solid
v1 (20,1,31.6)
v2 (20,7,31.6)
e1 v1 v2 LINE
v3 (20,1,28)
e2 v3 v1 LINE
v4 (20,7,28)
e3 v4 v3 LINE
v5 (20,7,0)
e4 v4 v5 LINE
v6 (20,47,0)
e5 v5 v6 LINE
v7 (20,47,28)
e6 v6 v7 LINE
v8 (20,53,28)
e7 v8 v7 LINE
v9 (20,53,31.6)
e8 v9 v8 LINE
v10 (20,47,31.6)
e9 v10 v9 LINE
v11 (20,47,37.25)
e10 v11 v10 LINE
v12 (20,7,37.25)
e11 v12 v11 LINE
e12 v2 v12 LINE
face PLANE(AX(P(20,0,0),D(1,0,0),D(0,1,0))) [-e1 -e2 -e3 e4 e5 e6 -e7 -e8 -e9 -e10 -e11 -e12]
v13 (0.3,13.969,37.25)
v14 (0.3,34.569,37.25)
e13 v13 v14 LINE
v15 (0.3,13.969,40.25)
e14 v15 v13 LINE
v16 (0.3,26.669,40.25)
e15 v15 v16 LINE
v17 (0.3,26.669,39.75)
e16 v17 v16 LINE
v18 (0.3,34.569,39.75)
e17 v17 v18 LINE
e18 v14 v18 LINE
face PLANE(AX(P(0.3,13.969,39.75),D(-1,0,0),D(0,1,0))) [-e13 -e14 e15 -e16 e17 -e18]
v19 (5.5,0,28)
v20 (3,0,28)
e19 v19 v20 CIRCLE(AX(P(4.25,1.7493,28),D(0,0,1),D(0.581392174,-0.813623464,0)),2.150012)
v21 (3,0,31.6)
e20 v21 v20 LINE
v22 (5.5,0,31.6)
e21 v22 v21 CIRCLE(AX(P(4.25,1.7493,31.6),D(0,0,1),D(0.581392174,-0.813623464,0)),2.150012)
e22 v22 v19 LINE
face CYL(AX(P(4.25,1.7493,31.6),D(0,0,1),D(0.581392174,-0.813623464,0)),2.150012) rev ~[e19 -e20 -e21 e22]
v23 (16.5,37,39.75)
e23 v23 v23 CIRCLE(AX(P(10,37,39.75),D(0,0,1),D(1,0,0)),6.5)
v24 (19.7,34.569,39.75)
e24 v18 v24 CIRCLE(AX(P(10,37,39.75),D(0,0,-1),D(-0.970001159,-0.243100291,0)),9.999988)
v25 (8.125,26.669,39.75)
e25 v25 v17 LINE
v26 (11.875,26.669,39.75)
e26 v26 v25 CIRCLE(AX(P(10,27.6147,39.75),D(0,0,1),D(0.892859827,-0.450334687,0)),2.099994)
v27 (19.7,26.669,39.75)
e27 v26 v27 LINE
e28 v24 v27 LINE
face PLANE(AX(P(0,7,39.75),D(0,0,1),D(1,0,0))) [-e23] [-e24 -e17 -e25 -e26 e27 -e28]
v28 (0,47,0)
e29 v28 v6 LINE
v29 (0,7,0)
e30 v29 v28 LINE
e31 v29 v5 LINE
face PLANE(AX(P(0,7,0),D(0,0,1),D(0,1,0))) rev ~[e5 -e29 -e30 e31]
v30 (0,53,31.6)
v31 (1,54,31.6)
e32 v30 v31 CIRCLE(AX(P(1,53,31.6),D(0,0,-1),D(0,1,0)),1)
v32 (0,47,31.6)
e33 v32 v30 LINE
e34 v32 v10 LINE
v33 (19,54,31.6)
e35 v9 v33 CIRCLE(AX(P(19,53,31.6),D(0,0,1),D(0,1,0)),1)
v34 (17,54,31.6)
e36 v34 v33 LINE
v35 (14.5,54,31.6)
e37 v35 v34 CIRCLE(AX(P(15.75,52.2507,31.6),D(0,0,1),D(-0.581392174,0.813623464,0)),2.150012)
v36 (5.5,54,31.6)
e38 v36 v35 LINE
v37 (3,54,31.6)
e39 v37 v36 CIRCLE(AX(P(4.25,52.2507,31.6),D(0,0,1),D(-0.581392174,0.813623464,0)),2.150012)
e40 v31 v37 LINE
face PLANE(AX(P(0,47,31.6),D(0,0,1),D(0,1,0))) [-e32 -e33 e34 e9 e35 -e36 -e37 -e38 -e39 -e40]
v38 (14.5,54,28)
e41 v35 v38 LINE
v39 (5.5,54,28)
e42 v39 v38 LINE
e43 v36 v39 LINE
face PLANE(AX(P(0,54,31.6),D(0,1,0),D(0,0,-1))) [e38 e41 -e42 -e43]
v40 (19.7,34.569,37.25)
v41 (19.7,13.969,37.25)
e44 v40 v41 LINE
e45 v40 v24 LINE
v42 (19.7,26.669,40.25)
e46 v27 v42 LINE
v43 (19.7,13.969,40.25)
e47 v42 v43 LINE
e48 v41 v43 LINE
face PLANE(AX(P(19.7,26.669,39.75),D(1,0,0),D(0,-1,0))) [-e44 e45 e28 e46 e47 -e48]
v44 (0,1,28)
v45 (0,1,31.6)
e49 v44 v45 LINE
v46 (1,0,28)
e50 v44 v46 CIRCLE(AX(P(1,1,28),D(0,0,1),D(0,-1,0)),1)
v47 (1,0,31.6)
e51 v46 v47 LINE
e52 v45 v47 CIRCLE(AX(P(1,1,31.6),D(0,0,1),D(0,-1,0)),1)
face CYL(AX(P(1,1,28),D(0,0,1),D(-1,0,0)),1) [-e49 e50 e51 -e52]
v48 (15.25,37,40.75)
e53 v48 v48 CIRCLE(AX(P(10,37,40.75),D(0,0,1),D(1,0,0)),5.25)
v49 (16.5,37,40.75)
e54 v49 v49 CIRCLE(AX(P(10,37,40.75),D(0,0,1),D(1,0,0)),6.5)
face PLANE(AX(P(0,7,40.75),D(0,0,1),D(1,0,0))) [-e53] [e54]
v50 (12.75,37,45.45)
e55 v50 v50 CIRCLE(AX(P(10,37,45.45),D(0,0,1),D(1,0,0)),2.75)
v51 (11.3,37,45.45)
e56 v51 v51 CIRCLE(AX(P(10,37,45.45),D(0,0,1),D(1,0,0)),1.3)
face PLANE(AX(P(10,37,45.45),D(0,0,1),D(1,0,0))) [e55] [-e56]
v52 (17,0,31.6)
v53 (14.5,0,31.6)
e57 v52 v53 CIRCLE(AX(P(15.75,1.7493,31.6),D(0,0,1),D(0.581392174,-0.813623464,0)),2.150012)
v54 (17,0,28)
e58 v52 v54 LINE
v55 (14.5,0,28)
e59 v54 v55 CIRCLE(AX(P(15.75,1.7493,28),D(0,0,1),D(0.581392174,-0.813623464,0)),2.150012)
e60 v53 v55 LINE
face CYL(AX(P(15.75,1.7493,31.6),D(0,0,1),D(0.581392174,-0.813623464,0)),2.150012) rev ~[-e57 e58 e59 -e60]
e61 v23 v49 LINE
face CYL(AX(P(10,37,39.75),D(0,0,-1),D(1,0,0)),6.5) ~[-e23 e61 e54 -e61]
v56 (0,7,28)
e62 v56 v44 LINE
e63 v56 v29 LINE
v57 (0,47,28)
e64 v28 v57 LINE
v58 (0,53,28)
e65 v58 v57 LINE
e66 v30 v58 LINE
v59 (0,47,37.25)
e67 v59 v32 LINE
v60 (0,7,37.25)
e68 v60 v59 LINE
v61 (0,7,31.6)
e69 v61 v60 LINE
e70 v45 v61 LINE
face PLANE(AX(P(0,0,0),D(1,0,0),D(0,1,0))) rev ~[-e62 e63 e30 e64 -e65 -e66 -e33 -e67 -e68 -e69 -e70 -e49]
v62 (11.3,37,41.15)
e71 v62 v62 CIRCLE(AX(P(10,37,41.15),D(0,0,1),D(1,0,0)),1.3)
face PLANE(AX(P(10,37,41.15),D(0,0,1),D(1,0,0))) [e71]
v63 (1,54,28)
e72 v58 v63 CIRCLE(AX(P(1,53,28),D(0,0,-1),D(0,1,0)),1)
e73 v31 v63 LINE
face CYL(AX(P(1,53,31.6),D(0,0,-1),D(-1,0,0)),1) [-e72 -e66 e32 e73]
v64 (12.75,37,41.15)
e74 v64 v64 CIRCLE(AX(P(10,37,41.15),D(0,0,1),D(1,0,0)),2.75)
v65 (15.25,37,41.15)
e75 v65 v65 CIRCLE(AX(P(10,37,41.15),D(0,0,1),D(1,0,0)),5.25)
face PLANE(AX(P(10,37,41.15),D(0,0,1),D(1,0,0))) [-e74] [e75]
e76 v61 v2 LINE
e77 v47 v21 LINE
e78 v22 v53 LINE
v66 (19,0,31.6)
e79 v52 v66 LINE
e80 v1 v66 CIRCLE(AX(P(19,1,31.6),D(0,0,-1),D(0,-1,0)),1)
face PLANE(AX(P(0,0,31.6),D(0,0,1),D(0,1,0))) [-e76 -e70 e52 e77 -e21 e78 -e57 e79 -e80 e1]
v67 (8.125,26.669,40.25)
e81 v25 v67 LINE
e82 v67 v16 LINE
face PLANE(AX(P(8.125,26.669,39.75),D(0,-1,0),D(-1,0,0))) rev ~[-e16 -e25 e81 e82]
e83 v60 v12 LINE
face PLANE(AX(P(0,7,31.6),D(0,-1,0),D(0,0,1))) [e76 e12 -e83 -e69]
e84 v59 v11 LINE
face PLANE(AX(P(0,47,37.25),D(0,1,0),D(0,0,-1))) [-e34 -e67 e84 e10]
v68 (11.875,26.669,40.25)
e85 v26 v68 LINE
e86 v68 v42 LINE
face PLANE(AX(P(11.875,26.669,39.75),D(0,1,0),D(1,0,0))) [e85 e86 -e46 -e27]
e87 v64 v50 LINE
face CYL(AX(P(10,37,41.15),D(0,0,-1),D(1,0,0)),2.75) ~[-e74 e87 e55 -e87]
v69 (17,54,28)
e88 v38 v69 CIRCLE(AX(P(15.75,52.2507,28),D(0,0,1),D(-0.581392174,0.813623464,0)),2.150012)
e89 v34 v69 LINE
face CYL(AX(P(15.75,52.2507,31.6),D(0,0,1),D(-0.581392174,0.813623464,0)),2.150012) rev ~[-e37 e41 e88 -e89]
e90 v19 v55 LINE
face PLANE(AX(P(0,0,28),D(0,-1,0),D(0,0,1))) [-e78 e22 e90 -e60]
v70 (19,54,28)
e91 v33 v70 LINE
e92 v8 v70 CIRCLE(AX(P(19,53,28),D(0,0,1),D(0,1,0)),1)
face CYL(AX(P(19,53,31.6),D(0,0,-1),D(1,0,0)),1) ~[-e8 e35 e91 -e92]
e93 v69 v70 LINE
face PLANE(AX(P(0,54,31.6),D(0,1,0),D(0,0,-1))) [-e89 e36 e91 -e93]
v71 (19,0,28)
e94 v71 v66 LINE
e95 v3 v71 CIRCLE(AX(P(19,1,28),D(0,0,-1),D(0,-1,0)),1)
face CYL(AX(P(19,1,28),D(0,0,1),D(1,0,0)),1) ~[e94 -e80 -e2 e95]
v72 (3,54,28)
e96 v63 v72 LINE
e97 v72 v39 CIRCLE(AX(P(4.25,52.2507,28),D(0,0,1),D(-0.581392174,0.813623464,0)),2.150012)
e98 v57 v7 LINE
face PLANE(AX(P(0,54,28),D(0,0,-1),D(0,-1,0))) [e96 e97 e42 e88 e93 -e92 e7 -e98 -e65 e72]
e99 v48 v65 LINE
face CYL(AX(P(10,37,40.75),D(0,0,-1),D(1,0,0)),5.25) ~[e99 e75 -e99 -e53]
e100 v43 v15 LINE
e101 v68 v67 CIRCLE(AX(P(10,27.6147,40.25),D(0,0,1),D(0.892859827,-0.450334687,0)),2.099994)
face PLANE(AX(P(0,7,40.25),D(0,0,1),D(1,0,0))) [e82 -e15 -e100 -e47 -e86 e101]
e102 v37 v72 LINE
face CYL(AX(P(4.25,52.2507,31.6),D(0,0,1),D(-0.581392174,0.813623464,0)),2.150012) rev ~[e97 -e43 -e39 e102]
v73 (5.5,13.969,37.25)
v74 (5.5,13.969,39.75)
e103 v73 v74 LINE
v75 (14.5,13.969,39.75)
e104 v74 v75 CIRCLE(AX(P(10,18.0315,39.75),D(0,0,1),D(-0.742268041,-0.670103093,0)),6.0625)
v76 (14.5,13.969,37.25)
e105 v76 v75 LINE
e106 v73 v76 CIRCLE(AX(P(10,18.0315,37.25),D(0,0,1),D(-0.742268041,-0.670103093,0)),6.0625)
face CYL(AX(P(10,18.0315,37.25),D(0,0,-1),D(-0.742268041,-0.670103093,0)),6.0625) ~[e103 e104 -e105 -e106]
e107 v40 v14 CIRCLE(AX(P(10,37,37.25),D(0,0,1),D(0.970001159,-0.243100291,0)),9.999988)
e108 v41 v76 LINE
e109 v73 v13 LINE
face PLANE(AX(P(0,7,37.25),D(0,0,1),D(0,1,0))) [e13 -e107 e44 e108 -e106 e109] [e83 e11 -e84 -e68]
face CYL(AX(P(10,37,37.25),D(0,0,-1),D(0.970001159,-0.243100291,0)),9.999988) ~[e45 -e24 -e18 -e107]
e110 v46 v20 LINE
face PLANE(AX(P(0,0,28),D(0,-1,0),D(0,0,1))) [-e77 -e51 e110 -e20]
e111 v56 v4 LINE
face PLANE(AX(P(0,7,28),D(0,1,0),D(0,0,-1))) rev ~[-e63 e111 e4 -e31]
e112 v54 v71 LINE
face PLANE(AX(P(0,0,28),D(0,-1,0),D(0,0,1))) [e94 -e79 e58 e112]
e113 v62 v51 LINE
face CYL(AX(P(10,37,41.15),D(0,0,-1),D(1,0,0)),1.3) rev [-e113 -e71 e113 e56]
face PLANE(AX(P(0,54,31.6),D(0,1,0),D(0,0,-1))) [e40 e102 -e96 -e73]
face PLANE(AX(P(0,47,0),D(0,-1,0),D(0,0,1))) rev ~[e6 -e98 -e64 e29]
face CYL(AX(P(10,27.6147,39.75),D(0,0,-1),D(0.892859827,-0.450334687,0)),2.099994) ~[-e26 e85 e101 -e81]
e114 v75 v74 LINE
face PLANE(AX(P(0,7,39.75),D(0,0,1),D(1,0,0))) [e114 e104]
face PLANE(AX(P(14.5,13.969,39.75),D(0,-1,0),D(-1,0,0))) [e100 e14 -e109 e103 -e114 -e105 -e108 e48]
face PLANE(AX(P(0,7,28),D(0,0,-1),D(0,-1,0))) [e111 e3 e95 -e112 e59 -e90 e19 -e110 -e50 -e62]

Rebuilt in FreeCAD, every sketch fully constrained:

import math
import FreeCAD as App
import Part
import Sketcher


def edges_at(feature, points):
    """Names of the edges that pass closest to the given points."""
    edges = feature.Shape.Edges
    near = lambda p: min(range(len(edges)), key=lambda i: edges[i].distToShape(Part.Vertex(*p))[0])
    return sorted({f"Edge{near(p) + 1}" for p in points})


def add_polygon(sketch, points):
    """Adds a closed chain of lines whose ends are joined by coincident constraints."""
    first, n = sketch.GeometryCount, len(points)
    for a, b in zip(points, points[1:] + points[:1]):
        sketch.addGeometry(Part.LineSegment(App.Vector(*a, 0), App.Vector(*b, 0)), False)
    for i in range(n):
        sketch.addConstraint(Sketcher.Constraint("Coincident", first + i, 2, first + (i + 1) % n, 1))

doc = App.newDocument("Part")
body = doc.addObject("PartDesign::Body", "Body")

# Sketch on YZ plane
sketch1 = body.newObject("Sketcher::SketchObject", "Sketch")
sketch1.AttachmentSupport = (doc.getObject("YZ_Plane"), [""])
sketch1.MapMode = "FlatFace"
add_polygon(sketch1, [(7, 28), (7, 0), (47, 0), (47, 28), (54, 28), (54, 31.6), (47, 31.6), (47, 37.25), (7, 37.25), (7, 31.6), (0, 31.6), (0, 28)])  # lines 0-11
sketch1.addConstraint([
    Sketcher.Constraint("Vertical", 0),
    Sketcher.Constraint("Horizontal", 1),
    Sketcher.Constraint("Vertical", 2),
    Sketcher.Constraint("Horizontal", 3),
    Sketcher.Constraint("Vertical", 4),
    Sketcher.Constraint("Horizontal", 5),
    Sketcher.Constraint("Vertical", 6),
    Sketcher.Constraint("Horizontal", 7),
    Sketcher.Constraint("Vertical", 8),
    Sketcher.Constraint("Horizontal", 9),
    Sketcher.Constraint("Vertical", 10),
    Sketcher.Constraint("Horizontal", 11),
    Sketcher.Constraint("PointOnObject", 0, 2, -1),
    Sketcher.Constraint("PointOnObject", 9, 2, -2),
    Sketcher.Constraint("Horizontal", 5, 2, 8, 2),
    Sketcher.Constraint("Horizontal", 3, 2, 10, 2),
    Sketcher.Constraint("Vertical", 2, 2, 5, 2),
    Sketcher.Constraint("Vertical", 0, 2, 7, 2),
    Sketcher.Constraint("Equal", 5, 9),
    Sketcher.Constraint("DistanceX", 1, 1, 1, 2, 40.0),
    Sketcher.Constraint("DistanceY", 0, 2, 0, 1, 28.0),
    Sketcher.Constraint("DistanceY", 4, 1, 4, 2, 3.6),
    Sketcher.Constraint("DistanceX", -1, 1, 3, 2, 54.0),
    Sketcher.Constraint("DistanceY", 6, 1, 6, 2, 5.65),
])
pad1 = body.newObject("PartDesign::Pad", "Pad")
pad1.Profile = sketch1
pad1.Length = 20

# Sketch on XY plane
sketch2 = body.newObject("Sketcher::SketchObject", "Sketch001")
sketch2.AttachmentSupport = (doc.getObject("XY_Plane"), [""])
sketch2.MapMode = "FlatFace"
sketch2.AttachmentOffset = App.Placement(App.Vector(0, 0, 37.25), App.Rotation())
sketch2.addGeometry([
    Part.LineSegment(App.Vector(0.3, 34.569, 0), App.Vector(0.3, 13.969, 0)),  # 0
    Part.LineSegment(App.Vector(0.3, 13.969, 0), App.Vector(5.5, 13.969, 0)),  # 1
    Part.ArcOfCircle(Part.Circle(App.Vector(10, 18.0315, 0), App.Vector(0, 0, 1), 6.0625), math.radians(-137.924978), math.radians(-42.075022)),  # 2
    Part.LineSegment(App.Vector(14.5, 13.969, 0), App.Vector(19.7, 13.969, 0)),  # 3
    Part.LineSegment(App.Vector(19.7, 13.969, 0), App.Vector(19.7, 34.569, 0)),  # 4
    Part.ArcOfCircle(Part.Circle(App.Vector(10, 37, 0), App.Vector(0, 0, 1), 9.999988), math.radians(-14.069595), math.radians(194.069595)),  # 5
], False)
sketch2.addConstraint([
    Sketcher.Constraint("Coincident", 0, 2, 1, 1),
    Sketcher.Constraint("Coincident", 1, 2, 2, 1),
    Sketcher.Constraint("Coincident", 2, 2, 3, 1),
    Sketcher.Constraint("Coincident", 3, 2, 4, 1),
    Sketcher.Constraint("Coincident", 4, 2, 5, 1),
    Sketcher.Constraint("Coincident", 5, 2, 0, 1),
    Sketcher.Constraint("Vertical", 0),
    Sketcher.Constraint("Horizontal", 1),
    Sketcher.Constraint("Horizontal", 3),
    Sketcher.Constraint("Vertical", 4),
    Sketcher.Constraint("Horizontal", 1, 2, 2, 2),
    Sketcher.Constraint("Horizontal", 4, 2, 5, 2),
    Sketcher.Constraint("Vertical", 2, 3, 5, 3),
    Sketcher.Constraint("DistanceY", 0, 2, 0, 1, 20.6),
    Sketcher.Constraint("Radius", 5, 10.0),
    Sketcher.Constraint("DistanceX", 1, 2, 2, 2, 9.0),
    Sketcher.Constraint("DistanceX", 0, 2, 2, 3, 9.7),
    Sketcher.Constraint("DistanceX", -1, 1, 2, 3, 10.0),
    Sketcher.Constraint("DistanceY", -1, 1, 5, 3, 37.0),
    Sketcher.Constraint("Radius", 2, 6.0625),
])
pad2 = body.newObject("PartDesign::Pad", "Pad001")
pad2.Profile = sketch2
pad2.Length = 2.5

# Sketch on XY plane
sketch3 = body.newObject("Sketcher::SketchObject", "Sketch002")
sketch3.AttachmentSupport = (doc.getObject("XY_Plane"), [""])
sketch3.MapMode = "FlatFace"
sketch3.AttachmentOffset = App.Placement(App.Vector(0, 0, 39.75), App.Rotation())
sketch3.addGeometry([
    Part.LineSegment(App.Vector(0.3, 13.969, 0), App.Vector(19.7, 13.969, 0)),  # 0
    Part.LineSegment(App.Vector(19.7, 13.969, 0), App.Vector(19.7, 26.669, 0)),  # 1
    Part.LineSegment(App.Vector(19.7, 26.669, 0), App.Vector(11.875, 26.669, 0)),  # 2
    Part.ArcOfCircle(Part.Circle(App.Vector(10, 27.6147, 0), App.Vector(0, 0, 1), 2.099994), math.radians(-26.765159), math.radians(206.765159)),  # 3
    Part.LineSegment(App.Vector(8.125, 26.669, 0), App.Vector(0.3, 26.669, 0)),  # 4
    Part.LineSegment(App.Vector(0.3, 26.669, 0), App.Vector(0.3, 13.969, 0)),  # 5
], False)
sketch3.addConstraint([
    Sketcher.Constraint("Coincident", 0, 2, 1, 1),
    Sketcher.Constraint("Coincident", 1, 2, 2, 1),
    Sketcher.Constraint("Coincident", 2, 2, 3, 1),
    Sketcher.Constraint("Coincident", 3, 2, 4, 1),
    Sketcher.Constraint("Coincident", 4, 2, 5, 1),
    Sketcher.Constraint("Coincident", 5, 2, 0, 1),
    Sketcher.Constraint("Horizontal", 0),
    Sketcher.Constraint("Vertical", 1),
    Sketcher.Constraint("Horizontal", 2),
    Sketcher.Constraint("Horizontal", 4),
    Sketcher.Constraint("Vertical", 5),
    Sketcher.Constraint("Horizontal", 2, 2, 3, 2),
    Sketcher.Constraint("Equal", 2, 4),
    Sketcher.Constraint("Radius", 3, 2.1),
    Sketcher.Constraint("DistanceY", 1, 1, 1, 2, 12.7),
    Sketcher.Constraint("DistanceX", 3, 2, 2, 2, 3.75),
    Sketcher.Constraint("DistanceX", 0, 1, 0, 2, 19.4),
    Sketcher.Constraint("DistanceX", -1, 1, 3, 3, 10.0),
    Sketcher.Constraint("DistanceY", -1, 1, 0, 2, 13.969),
])
pad3 = body.newObject("PartDesign::Pad", "Pad002")
pad3.Profile = sketch3
pad3.Length = 0.5

# Sketch on XY plane
sketch4 = body.newObject("Sketcher::SketchObject", "Sketch003")
sketch4.AttachmentSupport = (doc.getObject("XY_Plane"), [""])
sketch4.MapMode = "FlatFace"
sketch4.AttachmentOffset = App.Placement(App.Vector(0, 0, 39.75), App.Rotation())
sketch4.addGeometry(Part.Circle(App.Vector(10, 37, 0), App.Vector(0, 0, 1), 6.5), False)
sketch4.addConstraint([
    Sketcher.Constraint("Diameter", 0, 13.0),
    Sketcher.Constraint("DistanceX", -1, 1, 0, 3, 10.0),
    Sketcher.Constraint("DistanceY", -1, 1, 0, 3, 37.0),
])
pad4 = body.newObject("PartDesign::Pad", "Pad003")
pad4.Profile = sketch4
pad4.Length = 1

# Sketch on XY plane
sketch5 = body.newObject("Sketcher::SketchObject", "Sketch004")
sketch5.AttachmentSupport = (doc.getObject("XY_Plane"), [""])
sketch5.MapMode = "FlatFace"
sketch5.AttachmentOffset = App.Placement(App.Vector(0, 0, 40.75), App.Rotation())
sketch5.addGeometry(Part.Circle(App.Vector(10, 37, 0), App.Vector(0, 0, 1), 5.25), False)
sketch5.addConstraint([
    Sketcher.Constraint("Diameter", 0, 10.5),
    Sketcher.Constraint("DistanceX", -1, 1, 0, 3, 10.0),
    Sketcher.Constraint("DistanceY", -1, 1, 0, 3, 37.0),
])
pad5 = body.newObject("PartDesign::Pad", "Pad004")
pad5.Profile = sketch5
pad5.Length = 0.4

# Sketch on XY plane
sketch6 = body.newObject("Sketcher::SketchObject", "Sketch005")
sketch6.AttachmentSupport = (doc.getObject("XY_Plane"), [""])
sketch6.MapMode = "FlatFace"
sketch6.AttachmentOffset = App.Placement(App.Vector(0, 0, 41.15), App.Rotation())
sketch6.addGeometry([
    Part.Circle(App.Vector(10, 37, 0), App.Vector(0, 0, 1), 2.75),
    Part.Circle(App.Vector(10, 37, 0), App.Vector(0, 0, 1), 1.3),
], False)
sketch6.addConstraint([
    Sketcher.Constraint("Coincident", 1, 3, 0, 3),
    Sketcher.Constraint("Diameter", 0, 5.5),
    Sketcher.Constraint("Diameter", 1, 2.6),
    Sketcher.Constraint("DistanceX", -1, 1, 0, 3, 10.0),
    Sketcher.Constraint("DistanceY", -1, 1, 0, 3, 37.0),
])
pad6 = body.newObject("PartDesign::Pad", "Pad005")
pad6.Profile = sketch6
pad6.Length = 4.3

# Sketch on XY plane
sketch7 = body.newObject("Sketcher::SketchObject", "Sketch006")
sketch7.AttachmentSupport = (doc.getObject("XY_Plane"), [""])
sketch7.MapMode = "FlatFace"
sketch7.AttachmentOffset = App.Placement(App.Vector(0, 0, 31.6), App.Rotation())
sketch7.addGeometry([
    Part.ArcOfCircle(Part.Circle(App.Vector(4.25, 1.7493, 0), App.Vector(0, 0, 1), 2.150012), math.radians(-54.45148), math.radians(234.45148)),  # 0
    Part.LineSegment(App.Vector(3, 0, 0), App.Vector(5.5, 0, 0)),  # 1
    Part.LineSegment(App.Vector(14.5, 0, 0), App.Vector(17, 0, 0)),  # 2
    Part.ArcOfCircle(Part.Circle(App.Vector(15.75, 1.7493, 0), App.Vector(0, 0, 1), 2.150012), math.radians(-54.45148), math.radians(234.45148)),  # 3
    Part.LineSegment(App.Vector(5.5, 54, 0), App.Vector(3, 54, 0)),  # 4
    Part.ArcOfCircle(Part.Circle(App.Vector(4.25, 52.2507, 0), App.Vector(0, 0, 1), 2.150012), math.radians(125.54852), math.radians(414.45148)),  # 5
    Part.ArcOfCircle(Part.Circle(App.Vector(15.75, 52.2507, 0), App.Vector(0, 0, 1), 2.150012), math.radians(125.54852), math.radians(414.45148)),  # 6
    Part.LineSegment(App.Vector(17, 54, 0), App.Vector(14.5, 54, 0)),  # 7
], False)
sketch7.addConstraint([
    Sketcher.Constraint("Coincident", 0, 1, 1, 2),
    Sketcher.Constraint("Coincident", 1, 1, 0, 2),
    Sketcher.Constraint("Coincident", 2, 1, 3, 2),
    Sketcher.Constraint("Coincident", 3, 1, 2, 2),
    Sketcher.Constraint("Coincident", 4, 1, 5, 2),
    Sketcher.Constraint("Coincident", 5, 1, 4, 2),
    Sketcher.Constraint("Coincident", 6, 1, 7, 2),
    Sketcher.Constraint("Coincident", 7, 1, 6, 2),
    Sketcher.Constraint("Horizontal", 1),
    Sketcher.Constraint("Horizontal", 2),
    Sketcher.Constraint("Horizontal", 4),
    Sketcher.Constraint("Horizontal", 7),
    Sketcher.Constraint("Equal", 0, 3),
    Sketcher.Constraint("Equal", 3, 5),
    Sketcher.Constraint("Equal", 5, 6),
    Sketcher.Constraint("PointOnObject", 0, 1, -1),
    Sketcher.Constraint("PointOnObject", 2, 1, -1),
    Sketcher.Constraint("Horizontal", 0, 3, 3, 3),
    Sketcher.Constraint("Horizontal", 5, 3, 6, 3),
    Sketcher.Constraint("Horizontal", 5, 1, 6, 1),
    Sketcher.Constraint("Vertical", 0, 3, 5, 3),
    Sketcher.Constraint("Vertical", 3, 3, 6, 3),
    Sketcher.Constraint("Vertical", 0, 1, 4, 1),
    Sketcher.Constraint("Radius", 0, 2.15),
    Sketcher.Constraint("DistanceX", 1, 1, 1, 2, 2.5),
    Sketcher.Constraint("DistanceX", -1, 1, 1, 1, 3.0),
    Sketcher.Constraint("DistanceX", -1, 1, 3, 1, 17.0),
    Sketcher.Constraint("DistanceY", -1, 1, 4, 1, 54.0),
])
pocket1 = body.newObject("PartDesign::Pocket", "Pocket")
pocket1.Profile = sketch7
pocket1.Length = 3.6
doc.recompute()

fillet = body.newObject("PartDesign::Fillet", "Fillet")
fillet.Base = (pocket1, edges_at(pocket1, [
    (0, 0, 29.8),
    (20, 0, 29.8),
    (0, 54, 29.8),
    (20, 54, 29.8),
]))
fillet.Radius = 1

doc.recompute()
